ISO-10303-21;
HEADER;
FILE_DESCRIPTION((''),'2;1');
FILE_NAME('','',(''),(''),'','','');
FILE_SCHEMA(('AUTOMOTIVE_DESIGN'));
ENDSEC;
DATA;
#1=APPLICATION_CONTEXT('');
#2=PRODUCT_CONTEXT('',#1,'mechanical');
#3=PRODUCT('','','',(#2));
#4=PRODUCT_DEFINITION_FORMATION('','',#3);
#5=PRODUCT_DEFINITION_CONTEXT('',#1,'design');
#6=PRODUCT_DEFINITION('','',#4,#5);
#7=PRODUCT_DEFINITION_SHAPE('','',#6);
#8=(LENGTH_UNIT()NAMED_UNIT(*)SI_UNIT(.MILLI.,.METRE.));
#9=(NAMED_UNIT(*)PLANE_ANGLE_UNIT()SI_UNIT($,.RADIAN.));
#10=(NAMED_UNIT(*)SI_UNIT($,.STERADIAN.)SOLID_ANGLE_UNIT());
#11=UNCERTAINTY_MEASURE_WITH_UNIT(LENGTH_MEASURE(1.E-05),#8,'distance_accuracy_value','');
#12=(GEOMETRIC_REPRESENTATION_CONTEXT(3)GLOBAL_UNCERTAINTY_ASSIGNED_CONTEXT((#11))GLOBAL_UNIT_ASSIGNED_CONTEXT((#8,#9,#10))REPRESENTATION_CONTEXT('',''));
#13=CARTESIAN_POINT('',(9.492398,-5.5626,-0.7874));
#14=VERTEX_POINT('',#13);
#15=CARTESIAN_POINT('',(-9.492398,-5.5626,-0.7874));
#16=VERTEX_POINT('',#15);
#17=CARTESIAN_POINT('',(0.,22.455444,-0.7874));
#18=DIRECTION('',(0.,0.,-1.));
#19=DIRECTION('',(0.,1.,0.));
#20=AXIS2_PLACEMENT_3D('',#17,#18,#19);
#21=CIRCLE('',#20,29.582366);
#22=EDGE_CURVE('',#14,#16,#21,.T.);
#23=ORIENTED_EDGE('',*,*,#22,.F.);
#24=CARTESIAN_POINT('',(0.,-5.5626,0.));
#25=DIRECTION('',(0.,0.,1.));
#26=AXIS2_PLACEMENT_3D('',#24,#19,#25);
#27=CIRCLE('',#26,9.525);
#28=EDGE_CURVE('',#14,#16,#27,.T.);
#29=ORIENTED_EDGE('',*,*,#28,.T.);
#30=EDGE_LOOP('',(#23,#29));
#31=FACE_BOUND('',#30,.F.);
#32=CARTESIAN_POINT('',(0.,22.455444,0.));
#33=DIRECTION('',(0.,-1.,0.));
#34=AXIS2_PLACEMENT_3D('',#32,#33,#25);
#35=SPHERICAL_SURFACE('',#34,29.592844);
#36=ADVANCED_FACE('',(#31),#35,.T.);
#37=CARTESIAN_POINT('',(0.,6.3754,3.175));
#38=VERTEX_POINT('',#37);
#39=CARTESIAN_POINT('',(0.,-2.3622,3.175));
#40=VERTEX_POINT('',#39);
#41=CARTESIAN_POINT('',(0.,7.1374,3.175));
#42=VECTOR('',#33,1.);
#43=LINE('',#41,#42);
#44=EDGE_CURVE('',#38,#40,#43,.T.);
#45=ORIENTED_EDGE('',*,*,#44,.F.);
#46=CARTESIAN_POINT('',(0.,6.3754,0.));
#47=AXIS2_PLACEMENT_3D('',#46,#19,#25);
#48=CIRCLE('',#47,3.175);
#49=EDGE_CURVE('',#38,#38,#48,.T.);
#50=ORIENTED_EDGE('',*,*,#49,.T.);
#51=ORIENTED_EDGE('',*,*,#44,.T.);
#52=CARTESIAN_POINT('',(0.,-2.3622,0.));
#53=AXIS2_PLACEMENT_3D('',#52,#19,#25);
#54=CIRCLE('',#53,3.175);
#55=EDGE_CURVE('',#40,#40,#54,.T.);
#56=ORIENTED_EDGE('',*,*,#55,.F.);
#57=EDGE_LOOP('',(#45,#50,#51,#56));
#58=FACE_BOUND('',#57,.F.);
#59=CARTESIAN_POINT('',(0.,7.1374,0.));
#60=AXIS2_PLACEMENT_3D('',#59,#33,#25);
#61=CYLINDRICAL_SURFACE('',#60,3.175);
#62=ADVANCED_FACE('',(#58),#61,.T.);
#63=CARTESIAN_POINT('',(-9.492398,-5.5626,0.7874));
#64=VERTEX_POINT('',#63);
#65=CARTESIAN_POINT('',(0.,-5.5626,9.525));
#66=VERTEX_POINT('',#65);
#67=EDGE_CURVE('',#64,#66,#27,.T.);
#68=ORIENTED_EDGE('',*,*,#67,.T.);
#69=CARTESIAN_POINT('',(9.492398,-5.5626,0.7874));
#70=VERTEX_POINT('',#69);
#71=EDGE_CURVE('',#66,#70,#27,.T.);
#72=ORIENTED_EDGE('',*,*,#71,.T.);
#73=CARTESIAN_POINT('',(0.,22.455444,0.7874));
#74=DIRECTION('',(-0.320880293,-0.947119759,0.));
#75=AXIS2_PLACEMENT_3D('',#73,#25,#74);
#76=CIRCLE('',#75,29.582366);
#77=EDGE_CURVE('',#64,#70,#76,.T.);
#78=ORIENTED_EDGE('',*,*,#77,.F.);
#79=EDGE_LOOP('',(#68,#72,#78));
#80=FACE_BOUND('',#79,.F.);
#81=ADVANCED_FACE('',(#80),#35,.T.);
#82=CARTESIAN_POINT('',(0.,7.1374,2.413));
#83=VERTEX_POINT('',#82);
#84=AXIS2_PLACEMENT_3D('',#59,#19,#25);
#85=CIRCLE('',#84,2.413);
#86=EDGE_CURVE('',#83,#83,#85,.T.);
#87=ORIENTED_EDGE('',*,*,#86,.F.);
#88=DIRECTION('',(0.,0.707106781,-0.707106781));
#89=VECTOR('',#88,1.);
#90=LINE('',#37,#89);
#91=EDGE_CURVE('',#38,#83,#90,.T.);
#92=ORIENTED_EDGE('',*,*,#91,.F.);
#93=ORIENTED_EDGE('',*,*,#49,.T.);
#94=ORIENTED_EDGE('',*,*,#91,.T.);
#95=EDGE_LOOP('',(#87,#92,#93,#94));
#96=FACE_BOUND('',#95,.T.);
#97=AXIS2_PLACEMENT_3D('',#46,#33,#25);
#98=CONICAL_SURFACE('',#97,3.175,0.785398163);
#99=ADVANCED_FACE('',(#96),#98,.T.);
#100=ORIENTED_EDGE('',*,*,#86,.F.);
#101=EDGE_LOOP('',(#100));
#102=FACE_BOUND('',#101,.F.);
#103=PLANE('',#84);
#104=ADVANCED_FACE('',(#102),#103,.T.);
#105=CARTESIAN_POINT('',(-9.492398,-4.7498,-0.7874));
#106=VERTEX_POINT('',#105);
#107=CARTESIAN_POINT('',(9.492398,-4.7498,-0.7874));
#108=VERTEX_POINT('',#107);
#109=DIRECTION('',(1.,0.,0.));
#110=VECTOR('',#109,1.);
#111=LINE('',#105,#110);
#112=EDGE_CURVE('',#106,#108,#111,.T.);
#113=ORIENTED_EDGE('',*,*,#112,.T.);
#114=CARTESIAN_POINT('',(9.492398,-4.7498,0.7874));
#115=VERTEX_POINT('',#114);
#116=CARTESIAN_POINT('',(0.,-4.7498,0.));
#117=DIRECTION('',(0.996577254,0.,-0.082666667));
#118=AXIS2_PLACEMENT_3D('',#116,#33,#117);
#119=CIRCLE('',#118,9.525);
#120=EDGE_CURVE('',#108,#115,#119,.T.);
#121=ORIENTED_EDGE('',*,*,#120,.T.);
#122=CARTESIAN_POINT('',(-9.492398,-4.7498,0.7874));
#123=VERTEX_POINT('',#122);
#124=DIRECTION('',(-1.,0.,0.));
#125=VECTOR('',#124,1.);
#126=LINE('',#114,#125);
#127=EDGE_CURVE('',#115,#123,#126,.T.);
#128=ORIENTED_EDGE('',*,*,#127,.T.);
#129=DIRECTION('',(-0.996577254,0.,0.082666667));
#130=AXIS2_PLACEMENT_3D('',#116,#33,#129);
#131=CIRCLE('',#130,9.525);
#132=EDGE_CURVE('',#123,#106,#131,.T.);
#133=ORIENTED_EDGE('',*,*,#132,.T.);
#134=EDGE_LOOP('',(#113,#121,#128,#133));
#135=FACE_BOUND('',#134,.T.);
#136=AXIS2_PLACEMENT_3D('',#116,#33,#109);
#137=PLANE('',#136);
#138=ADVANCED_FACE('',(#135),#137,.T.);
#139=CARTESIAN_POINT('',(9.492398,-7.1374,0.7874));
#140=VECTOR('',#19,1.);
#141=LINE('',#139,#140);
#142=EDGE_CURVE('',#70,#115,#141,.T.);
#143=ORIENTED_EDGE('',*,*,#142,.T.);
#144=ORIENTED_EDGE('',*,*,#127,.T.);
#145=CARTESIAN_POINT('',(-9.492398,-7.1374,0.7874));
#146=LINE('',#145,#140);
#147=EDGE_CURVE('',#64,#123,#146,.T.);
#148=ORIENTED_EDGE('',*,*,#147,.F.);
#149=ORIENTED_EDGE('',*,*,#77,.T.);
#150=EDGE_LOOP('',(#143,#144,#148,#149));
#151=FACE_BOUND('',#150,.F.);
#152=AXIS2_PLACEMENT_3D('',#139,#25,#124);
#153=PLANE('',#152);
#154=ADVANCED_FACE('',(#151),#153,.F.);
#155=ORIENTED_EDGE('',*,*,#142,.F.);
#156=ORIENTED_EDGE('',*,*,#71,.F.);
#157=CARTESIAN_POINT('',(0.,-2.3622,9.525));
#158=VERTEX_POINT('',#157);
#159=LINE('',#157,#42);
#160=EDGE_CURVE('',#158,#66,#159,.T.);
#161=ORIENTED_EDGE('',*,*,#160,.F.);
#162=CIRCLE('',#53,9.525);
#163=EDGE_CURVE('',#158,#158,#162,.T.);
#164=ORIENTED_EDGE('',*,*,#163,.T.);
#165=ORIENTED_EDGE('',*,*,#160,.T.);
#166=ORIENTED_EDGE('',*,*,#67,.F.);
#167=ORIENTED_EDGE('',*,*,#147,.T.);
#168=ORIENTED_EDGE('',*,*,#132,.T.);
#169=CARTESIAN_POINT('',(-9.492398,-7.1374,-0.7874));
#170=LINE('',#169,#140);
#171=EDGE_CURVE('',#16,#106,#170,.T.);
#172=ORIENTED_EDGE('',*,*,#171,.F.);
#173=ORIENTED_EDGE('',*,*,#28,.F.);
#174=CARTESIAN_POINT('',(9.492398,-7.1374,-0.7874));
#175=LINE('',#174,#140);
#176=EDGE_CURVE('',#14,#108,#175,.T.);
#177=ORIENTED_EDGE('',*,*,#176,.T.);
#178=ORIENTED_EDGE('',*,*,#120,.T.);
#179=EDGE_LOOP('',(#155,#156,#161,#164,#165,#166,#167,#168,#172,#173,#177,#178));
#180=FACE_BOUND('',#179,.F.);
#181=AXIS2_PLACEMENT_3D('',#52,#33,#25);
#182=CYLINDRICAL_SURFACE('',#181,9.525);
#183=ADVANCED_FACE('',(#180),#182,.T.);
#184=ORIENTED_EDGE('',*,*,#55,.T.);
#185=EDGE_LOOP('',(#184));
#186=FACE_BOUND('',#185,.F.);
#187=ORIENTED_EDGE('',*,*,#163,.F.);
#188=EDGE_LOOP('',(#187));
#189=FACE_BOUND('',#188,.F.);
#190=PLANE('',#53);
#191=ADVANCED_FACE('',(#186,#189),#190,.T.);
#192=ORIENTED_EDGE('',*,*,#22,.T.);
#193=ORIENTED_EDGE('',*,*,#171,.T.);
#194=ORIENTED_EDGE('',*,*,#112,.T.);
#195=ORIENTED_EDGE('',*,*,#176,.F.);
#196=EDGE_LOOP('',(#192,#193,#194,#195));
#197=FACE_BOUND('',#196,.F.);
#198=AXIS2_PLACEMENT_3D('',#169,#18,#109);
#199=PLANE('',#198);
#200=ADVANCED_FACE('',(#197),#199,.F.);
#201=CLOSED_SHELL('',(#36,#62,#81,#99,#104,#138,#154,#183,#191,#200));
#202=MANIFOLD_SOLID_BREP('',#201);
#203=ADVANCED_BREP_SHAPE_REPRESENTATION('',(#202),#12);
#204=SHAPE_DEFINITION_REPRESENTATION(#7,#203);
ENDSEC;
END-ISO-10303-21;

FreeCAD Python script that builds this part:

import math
import FreeCAD as App
import Part
import Sketcher
Q = App.Units.Quantity


def edges_at(feature, points):
    """Names of the edges that pass closest to the given points."""
    edges = feature.Shape.Edges
    near = lambda p: min(range(len(edges)), key=lambda i: edges[i].distToShape(Part.Vertex(*p))[0])
    return sorted({f"Edge{near(p) + 1}" for p in points})

doc = App.newDocument("Part")
body = doc.addObject("PartDesign::Body", "Body")

sketch1 = doc.addObject("Sketcher::SketchObject", "Sketch")
body.addObject(sketch1)
sketch1.AttachmentSupport = (doc.YZ_Plane, [""])
sketch1.MapMode = "FlatFace"
sketch1.addGeometry([
    Part.ArcOfCircle(Part.Circle(App.Vector(22.455444, 0, 0), App.Vector(0, 0, 1), 29.592844), math.radians(161.224047), math.radians(180)),
    Part.LineSegment(App.Vector(-7.1374, 0, 0), App.Vector(7.1374, 0, 0)),
    Part.LineSegment(App.Vector(7.1374, 0, 0), App.Vector(7.1374, 3.175, 0)),
    Part.LineSegment(App.Vector(7.1374, 3.175, 0), App.Vector(-2.3622, 3.175, 0)),
    Part.LineSegment(App.Vector(-2.3622, 3.175, 0), App.Vector(-2.3622, 9.525, 0)),
    Part.LineSegment(App.Vector(-2.3622, 9.525, 0), App.Vector(-5.5626, 9.525, 0)),
], False)
sketch1.addConstraint([
    Sketcher.Constraint("Coincident", 0, 2, 1, 1),
    Sketcher.Constraint("Coincident", 1, 2, 2, 1),
    Sketcher.Constraint("Coincident", 2, 2, 3, 1),
    Sketcher.Constraint("Coincident", 3, 2, 4, 1),
    Sketcher.Constraint("Coincident", 4, 2, 5, 1),
    Sketcher.Constraint("Coincident", 5, 2, 0, 1),
    Sketcher.Constraint("Horizontal", 1),
    Sketcher.Constraint("Vertical", 2),
    Sketcher.Constraint("Horizontal", 3),
    Sketcher.Constraint("Vertical", 4),
    Sketcher.Constraint("Horizontal", 5),
    Sketcher.Constraint("Symmetric", 0, 2, 1, 2, -1, 1),
    Sketcher.Constraint("PointOnObject", 0, 3, -1),
    Sketcher.Constraint("DistanceY", 4, 1, 4, 2, Q("0.25 in")),
    Sketcher.Constraint("DistanceX", 5, 2, 2, 2, Q("0.5 in")),
    Sketcher.Constraint("DistanceX", 1, 1, 1, 2, Q("0.562 in")),
    Sketcher.Constraint("DistanceX", 3, 2, 3, 1, Q("0.374 in")),
    Sketcher.Constraint("DistanceY", 2, 1, 2, 2, Q("0.125 in")),
])
revolution = doc.addObject("PartDesign::Revolution", "Revolution")
body.addObject(revolution)
revolution.Profile = sketch1
revolution.ReferenceAxis = (sketch1, ["H_Axis"])
revolution.Angle = 360

sketch2 = doc.addObject("Sketcher::SketchObject", "Sketch001")
body.addObject(sketch2)
sketch2.AttachmentSupport = (doc.XZ_Plane, [""])
sketch2.MapMode = "FlatFace"
sketch2.AttachmentOffset = App.Placement(App.Vector(0, 0, 0.281 * 25.4), App.Rotation())
sketch2.addGeometry([
    Part.LineSegment(App.Vector(9.492398, 0.7874, 0), App.Vector(-9.492398, 0.7874, 0)),
    Part.ArcOfCircle(Part.Circle(App.Vector(0, 0, 0), App.Vector(0, 0, 1), 9.525), math.radians(175.258138), math.radians(184.741862)),
    Part.LineSegment(App.Vector(-9.492398, -0.7874, 0), App.Vector(9.492398, -0.7874, 0)),
    Part.ArcOfCircle(Part.Circle(App.Vector(0, 0, 0), App.Vector(0, 0, 1), 9.525), math.radians(-4.741862), math.radians(4.741862)),
], False)
sketch2.addConstraint([
    Sketcher.Constraint("Coincident", 0, 2, 1, 1),
    Sketcher.Constraint("Coincident", 1, 2, 2, 1),
    Sketcher.Constraint("Coincident", 2, 2, 3, 1),
    Sketcher.Constraint("Coincident", 3, 2, 0, 1),
    Sketcher.Constraint("Horizontal", 0),
    Sketcher.Constraint("Horizontal", 2),
    Sketcher.Constraint("Coincident", 1, 3, -1, 1),
    Sketcher.Constraint("Coincident", 3, 3, -1, 1),
    Sketcher.Constraint("Equal", 1, 3),
    Sketcher.Constraint("Vertical", 0, 2, 1, 2),
    Sketcher.Constraint("Radius", 1, Q("0.375 in")),
    Sketcher.Constraint("DistanceY", -1, 1, 0, 2, Q("0.031 in")),
])
pocket1 = doc.addObject("PartDesign::Pocket", "Pocket")
body.addObject(pocket1)
pocket1.Profile = sketch2
pocket1.Length = Q("0.094 in")
doc.recompute()

chamfer = doc.addObject("PartDesign::Chamfer", "Chamfer")
body.addObject(chamfer)
chamfer.Base = (pocket1, edges_at(pocket1, [(0, 7.137, -3.175)]))
chamfer.ChamferType = "Two distances"
chamfer.Size = Q("0.03 in")
chamfer.Size2 = Q("0.03 in")

doc.recompute()
